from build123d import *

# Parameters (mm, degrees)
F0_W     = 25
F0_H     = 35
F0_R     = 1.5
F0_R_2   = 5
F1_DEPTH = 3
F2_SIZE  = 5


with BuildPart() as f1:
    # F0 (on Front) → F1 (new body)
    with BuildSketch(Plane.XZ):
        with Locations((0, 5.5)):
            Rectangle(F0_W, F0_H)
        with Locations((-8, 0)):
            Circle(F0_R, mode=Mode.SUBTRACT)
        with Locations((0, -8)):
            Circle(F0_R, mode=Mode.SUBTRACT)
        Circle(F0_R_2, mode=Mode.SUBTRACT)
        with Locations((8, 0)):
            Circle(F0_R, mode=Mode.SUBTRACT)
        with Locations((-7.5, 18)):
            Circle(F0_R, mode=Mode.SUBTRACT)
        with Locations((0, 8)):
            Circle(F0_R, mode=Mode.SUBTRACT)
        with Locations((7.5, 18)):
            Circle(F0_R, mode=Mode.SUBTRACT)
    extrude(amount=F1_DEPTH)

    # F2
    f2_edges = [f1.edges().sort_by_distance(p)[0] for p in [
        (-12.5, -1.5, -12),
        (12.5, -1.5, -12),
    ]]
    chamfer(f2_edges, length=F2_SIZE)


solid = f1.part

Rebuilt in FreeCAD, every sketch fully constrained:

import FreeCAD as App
import Part
import Sketcher

V = App.Vector


def edges_at(feature, points):
    """Names of the edges that pass closest to the given points."""
    edges = feature.Shape.Edges
    near = lambda p: min(range(len(edges)), key=lambda i: edges[i].distToShape(Part.Vertex(*p))[0])
    return sorted({f"Edge{near(p) + 1}" for p in points})


def add_polygon(sketch, points):
    """Adds a closed chain of lines whose ends are joined by coincident constraints."""
    first, n = sketch.GeometryCount, len(points)
    for a, b in zip(points, points[1:] + points[:1]):
        sketch.addGeometry(Part.LineSegment(App.Vector(*a, 0), App.Vector(*b, 0)), False)
    for i in range(n):
        sketch.addConstraint(Sketcher.Constraint("Coincident", first + i, 2, first + (i + 1) % n, 1))

doc = App.newDocument("Part")
body = doc.addObject("PartDesign::Body", "Body")

sketch1 = body.newObject("Sketcher::SketchObject", "Sketch")
sketch1.AttachmentSupport = (doc.getObject("XZ_Plane"), [""])
sketch1.MapMode = "FlatFace"
add_polygon(sketch1, [(-12.5, 23), (-12.5, -12), (12.5, -12), (12.5, 23)])
sketch1.addGeometry(Part.Circle(V(-8, 0, 0), V(0, 0, 1), 1.5), False)
sketch1.addGeometry(Part.Circle(V(0, -8, 0), V(0, 0, 1), 1.5), False)
sketch1.addGeometry(Part.Circle(V(0, 0, 0), V(0, 0, 1), 5), False)
sketch1.addGeometry(Part.Circle(V(8, 0, 0), V(0, 0, 1), 1.5), False)
sketch1.addGeometry(Part.Circle(V(-7.5, 18, 0), V(0, 0, 1), 1.5), False)
sketch1.addGeometry(Part.Circle(V(0, 8, 0), V(0, 0, 1), 1.5), False)
sketch1.addGeometry(Part.Circle(V(7.5, 18, 0), V(0, 0, 1), 1.5), False)
sketch1.addConstraint([
    Sketcher.Constraint("Vertical", 0),
    Sketcher.Constraint("Horizontal", 1),
    Sketcher.Constraint("Vertical", 2),
    Sketcher.Constraint("Horizontal", 3),
    Sketcher.Constraint("Coincident", 6, 3, -1, 1),
    Sketcher.Constraint("Equal", 4, 5),
    Sketcher.Constraint("Equal", 5, 7),
    Sketcher.Constraint("Equal", 7, 8),
    Sketcher.Constraint("Equal", 8, 9),
    Sketcher.Constraint("Equal", 9, 10),
    Sketcher.Constraint("Symmetric", 4, 3, 7, 3, -1, 1),
    Sketcher.Constraint("Symmetric", 5, 3, 9, 3, -1, 1),
    Sketcher.Constraint("Symmetric", 8, 3, 10, 3, -2),
    Sketcher.Constraint("PointOnObject", 4, 3, -1),
    Sketcher.Constraint("PointOnObject", 5, 3, -2),
    Sketcher.Constraint("Diameter", 4, 3.0),
    Sketcher.Constraint("Diameter", 6, 10.0),
    Sketcher.Constraint("DistanceX", 1, 1, 1, 2, 25.0),
    Sketcher.Constraint("DistanceY", 0, 2, 0, 1, 35.0),
    Sketcher.Constraint("DistanceX", 4, 3, -1, 1, 8.0),
    Sketcher.Constraint("DistanceY", 5, 3, -1, 1, 8.0),
    Sketcher.Constraint("DistanceY", -1, 1, 8, 3, 18.0),
    Sketcher.Constraint("DistanceY", 0, 2, -1, 1, 12.0),
    Sketcher.Constraint("DistanceX", 8, 3, 10, 3, 15.0),
    Sketcher.Constraint("DistanceX", 10, 3, 2, 2, 5.0),
])
pad1 = body.newObject("PartDesign::Pad", "Pad")
pad1.Profile = sketch1
pad1.Length = 3
doc.recompute()

chamfer = body.newObject("PartDesign::Chamfer", "Chamfer")
chamfer.Base = (pad1, edges_at(pad1, [(-12.5, -1.5, -12), (12.5, -1.5, -12)]))
chamfer.Size = 5

doc.recompute()
